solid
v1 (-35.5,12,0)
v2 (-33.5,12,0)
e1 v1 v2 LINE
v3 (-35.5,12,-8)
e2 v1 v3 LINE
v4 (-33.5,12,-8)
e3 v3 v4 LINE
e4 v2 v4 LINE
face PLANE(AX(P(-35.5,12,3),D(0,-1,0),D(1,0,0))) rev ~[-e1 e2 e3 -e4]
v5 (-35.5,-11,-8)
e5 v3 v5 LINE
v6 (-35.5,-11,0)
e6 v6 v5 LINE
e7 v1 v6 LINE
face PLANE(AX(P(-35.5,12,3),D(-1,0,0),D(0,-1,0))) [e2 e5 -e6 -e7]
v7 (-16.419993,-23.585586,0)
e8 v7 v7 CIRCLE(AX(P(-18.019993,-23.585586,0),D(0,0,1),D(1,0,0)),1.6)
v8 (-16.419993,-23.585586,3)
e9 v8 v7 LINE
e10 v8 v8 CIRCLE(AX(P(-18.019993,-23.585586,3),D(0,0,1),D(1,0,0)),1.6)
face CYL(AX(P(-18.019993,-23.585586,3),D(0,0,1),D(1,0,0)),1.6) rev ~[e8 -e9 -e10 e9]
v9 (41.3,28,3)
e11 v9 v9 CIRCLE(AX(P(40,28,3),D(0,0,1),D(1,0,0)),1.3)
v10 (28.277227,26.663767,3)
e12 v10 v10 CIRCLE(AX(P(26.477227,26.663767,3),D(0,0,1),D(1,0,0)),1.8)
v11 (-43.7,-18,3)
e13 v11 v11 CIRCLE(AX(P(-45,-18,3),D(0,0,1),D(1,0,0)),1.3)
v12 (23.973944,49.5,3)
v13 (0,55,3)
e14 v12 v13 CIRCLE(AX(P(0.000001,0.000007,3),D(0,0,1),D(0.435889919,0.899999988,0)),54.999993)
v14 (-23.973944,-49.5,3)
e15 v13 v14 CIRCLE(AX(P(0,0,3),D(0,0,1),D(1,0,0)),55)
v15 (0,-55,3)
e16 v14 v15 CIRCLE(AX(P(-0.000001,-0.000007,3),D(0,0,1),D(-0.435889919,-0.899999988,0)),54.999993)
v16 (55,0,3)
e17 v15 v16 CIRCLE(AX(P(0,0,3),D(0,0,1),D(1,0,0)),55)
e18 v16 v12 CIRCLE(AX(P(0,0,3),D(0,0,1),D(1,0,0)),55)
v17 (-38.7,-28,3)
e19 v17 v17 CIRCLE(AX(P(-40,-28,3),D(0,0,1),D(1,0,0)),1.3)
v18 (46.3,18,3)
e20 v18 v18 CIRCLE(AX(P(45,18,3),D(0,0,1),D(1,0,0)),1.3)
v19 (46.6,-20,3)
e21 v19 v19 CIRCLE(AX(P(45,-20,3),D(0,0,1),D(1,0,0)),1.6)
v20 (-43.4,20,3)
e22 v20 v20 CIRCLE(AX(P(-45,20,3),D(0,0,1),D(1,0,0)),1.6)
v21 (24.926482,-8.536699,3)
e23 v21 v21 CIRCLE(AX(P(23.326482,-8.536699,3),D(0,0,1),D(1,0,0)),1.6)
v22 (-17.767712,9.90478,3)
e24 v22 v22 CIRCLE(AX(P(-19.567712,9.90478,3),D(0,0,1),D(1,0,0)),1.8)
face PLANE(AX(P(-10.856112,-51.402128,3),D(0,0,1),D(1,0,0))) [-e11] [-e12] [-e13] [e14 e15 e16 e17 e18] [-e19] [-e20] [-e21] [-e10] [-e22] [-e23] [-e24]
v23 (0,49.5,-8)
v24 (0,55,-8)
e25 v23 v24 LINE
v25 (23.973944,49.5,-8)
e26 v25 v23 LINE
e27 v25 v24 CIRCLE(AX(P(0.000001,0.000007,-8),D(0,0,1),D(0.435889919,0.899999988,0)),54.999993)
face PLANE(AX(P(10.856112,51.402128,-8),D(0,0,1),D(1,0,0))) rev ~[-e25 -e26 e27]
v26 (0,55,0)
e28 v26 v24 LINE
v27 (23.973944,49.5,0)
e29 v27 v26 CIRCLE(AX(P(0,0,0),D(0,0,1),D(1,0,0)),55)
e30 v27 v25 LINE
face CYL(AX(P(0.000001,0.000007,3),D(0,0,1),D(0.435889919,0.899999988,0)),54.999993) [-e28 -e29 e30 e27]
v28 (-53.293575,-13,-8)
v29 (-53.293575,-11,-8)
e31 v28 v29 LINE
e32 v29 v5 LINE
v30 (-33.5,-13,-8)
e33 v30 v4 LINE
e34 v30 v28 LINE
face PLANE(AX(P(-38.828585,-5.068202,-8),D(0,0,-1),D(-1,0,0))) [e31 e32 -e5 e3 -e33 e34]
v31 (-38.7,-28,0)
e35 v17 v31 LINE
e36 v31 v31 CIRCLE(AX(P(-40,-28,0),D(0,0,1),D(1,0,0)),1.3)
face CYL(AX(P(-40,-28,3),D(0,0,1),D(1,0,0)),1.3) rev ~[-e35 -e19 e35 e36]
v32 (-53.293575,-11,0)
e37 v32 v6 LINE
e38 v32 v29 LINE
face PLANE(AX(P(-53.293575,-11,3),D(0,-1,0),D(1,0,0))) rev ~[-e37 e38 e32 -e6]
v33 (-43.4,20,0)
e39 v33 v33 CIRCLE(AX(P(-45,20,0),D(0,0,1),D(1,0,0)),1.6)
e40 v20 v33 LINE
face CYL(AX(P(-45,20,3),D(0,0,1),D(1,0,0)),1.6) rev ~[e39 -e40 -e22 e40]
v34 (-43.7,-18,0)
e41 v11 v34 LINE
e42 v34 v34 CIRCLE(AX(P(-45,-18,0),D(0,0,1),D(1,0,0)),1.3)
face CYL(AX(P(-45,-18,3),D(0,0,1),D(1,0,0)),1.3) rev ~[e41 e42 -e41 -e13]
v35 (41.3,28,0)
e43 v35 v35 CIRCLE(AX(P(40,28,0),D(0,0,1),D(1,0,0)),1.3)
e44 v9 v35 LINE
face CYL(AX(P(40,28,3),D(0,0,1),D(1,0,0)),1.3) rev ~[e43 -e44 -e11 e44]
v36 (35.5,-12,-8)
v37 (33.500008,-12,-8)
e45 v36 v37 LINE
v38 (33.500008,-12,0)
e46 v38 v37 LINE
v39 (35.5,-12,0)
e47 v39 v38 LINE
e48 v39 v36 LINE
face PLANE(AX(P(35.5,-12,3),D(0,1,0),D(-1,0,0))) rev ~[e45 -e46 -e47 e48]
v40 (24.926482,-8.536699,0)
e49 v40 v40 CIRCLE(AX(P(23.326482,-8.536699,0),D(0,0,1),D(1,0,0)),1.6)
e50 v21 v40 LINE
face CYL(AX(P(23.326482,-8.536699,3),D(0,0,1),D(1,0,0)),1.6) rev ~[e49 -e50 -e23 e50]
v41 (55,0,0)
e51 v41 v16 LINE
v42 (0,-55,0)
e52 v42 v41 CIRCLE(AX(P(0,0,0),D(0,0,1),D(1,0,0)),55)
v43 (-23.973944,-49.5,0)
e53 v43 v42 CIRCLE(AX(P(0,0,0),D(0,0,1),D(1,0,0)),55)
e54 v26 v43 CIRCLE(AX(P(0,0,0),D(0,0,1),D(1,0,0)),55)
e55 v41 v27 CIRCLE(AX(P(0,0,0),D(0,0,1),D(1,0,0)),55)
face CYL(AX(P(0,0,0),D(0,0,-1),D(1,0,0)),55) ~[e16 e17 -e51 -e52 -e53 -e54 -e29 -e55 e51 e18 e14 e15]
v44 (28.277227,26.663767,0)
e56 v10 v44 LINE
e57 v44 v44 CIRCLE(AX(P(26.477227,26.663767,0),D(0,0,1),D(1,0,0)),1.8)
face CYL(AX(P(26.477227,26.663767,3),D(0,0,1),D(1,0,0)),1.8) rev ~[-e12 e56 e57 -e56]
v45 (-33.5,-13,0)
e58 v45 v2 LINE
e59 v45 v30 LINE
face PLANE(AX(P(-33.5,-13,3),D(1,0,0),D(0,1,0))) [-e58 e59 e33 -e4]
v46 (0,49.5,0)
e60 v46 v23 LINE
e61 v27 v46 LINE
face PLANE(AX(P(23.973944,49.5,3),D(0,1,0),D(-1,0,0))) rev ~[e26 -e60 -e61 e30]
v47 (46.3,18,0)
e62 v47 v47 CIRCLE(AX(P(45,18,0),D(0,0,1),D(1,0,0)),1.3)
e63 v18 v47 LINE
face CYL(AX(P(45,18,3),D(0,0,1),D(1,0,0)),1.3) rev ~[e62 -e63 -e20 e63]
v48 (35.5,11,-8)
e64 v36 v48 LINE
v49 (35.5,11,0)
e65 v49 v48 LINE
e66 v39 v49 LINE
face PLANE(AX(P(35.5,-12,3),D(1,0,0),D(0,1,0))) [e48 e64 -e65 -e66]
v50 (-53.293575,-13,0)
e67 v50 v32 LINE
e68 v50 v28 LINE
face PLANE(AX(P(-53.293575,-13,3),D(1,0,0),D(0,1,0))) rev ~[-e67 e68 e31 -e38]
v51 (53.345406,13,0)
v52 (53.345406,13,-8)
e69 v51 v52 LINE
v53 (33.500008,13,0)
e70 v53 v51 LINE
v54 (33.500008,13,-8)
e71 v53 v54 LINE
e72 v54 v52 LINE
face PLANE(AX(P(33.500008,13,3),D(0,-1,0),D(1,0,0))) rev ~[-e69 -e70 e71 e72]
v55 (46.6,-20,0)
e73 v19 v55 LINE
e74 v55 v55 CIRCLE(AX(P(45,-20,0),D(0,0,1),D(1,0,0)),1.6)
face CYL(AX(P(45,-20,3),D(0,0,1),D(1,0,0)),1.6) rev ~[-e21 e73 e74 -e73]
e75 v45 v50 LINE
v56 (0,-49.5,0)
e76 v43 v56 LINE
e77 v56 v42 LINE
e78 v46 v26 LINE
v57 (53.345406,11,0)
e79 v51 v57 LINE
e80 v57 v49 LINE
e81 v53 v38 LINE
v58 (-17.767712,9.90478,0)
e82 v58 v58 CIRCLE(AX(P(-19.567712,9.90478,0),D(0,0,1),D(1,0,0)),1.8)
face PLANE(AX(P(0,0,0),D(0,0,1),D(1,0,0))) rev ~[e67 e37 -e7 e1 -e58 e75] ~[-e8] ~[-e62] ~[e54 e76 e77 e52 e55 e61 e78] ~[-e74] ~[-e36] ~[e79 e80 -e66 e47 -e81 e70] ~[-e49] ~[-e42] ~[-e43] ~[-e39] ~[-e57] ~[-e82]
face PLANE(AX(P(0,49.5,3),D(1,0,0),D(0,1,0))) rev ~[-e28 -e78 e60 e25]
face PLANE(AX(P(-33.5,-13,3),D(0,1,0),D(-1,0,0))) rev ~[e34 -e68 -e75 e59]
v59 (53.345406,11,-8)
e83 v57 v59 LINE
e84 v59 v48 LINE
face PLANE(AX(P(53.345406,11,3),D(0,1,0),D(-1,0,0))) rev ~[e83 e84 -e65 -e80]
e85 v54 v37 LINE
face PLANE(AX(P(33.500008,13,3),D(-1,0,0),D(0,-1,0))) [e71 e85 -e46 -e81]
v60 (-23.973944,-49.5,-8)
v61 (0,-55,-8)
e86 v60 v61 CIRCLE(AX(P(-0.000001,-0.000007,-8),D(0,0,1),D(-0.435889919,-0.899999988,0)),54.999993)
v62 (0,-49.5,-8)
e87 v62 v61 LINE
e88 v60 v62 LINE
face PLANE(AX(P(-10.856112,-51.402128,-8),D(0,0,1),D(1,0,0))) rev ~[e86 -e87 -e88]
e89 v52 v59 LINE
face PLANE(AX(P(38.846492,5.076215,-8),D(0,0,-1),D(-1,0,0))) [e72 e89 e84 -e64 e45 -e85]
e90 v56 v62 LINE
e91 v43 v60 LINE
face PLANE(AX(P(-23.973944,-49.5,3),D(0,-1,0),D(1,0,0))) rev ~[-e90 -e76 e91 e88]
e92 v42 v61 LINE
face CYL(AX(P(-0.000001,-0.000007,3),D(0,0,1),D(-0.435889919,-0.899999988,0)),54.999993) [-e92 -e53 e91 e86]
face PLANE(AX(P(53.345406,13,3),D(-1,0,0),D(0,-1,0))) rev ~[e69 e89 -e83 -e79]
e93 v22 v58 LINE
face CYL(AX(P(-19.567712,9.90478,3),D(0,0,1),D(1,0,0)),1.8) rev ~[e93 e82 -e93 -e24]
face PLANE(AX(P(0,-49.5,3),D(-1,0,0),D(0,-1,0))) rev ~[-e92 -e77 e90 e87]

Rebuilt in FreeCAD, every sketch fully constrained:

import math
import FreeCAD as App
import Part
import Sketcher

V = App.Vector


def add_polygon(sketch, points):
    """Adds a closed chain of lines whose ends are joined by coincident constraints."""
    first, n = sketch.GeometryCount, len(points)
    for a, b in zip(points, points[1:] + points[:1]):
        sketch.addGeometry(Part.LineSegment(App.Vector(*a, 0), App.Vector(*b, 0)), False)
    for i in range(n):
        sketch.addConstraint(Sketcher.Constraint("Coincident", first + i, 2, first + (i + 1) % n, 1))

doc = App.newDocument("Part")
params = doc.addObject("Spreadsheet::Sheet", "Params")
for row, (alias, value) in enumerate([
    ("sketch1_diameter", "110 mm"),
    ("pad1_length", "3 mm"),
    ("sketch2_diameter", "2.6 mm"),
    ("sketch2_diameter2", "3.6 mm"),
    ("sketch2_diameter3", "3.2 mm"),
    ("pocket1_length", "5 mm"),
    ("sketch3_width", "2 mm"),
    ("sketch3_height", "25 mm"),
    ("pad2_length", "11 mm"),
    ("sketch4_height", "5.5 mm"),
    ("pad3_length", "11 mm"),
    ("sketch5_diameter", "3.2 mm"),
    ("pocket2_length", "5 mm"),
], start=1):
    params.set(f"A{row}", alias)
    params.set(f"B{row}", "=" + value)
    params.setAlias(f"B{row}", alias)

body = doc.addObject("PartDesign::Body", "Body")

# Sketch on XY plane
sketch1 = doc.addObject("Sketcher::SketchObject", "Sketch")
body.addObject(sketch1)
sketch1.AttachmentSupport = (doc.XY_Plane, [""])
sketch1.MapMode = "FlatFace"
sketch1.addGeometry(Part.Circle(V(0, 0, 0), V(0, 0, 1), 55), False)
sketch1.addConstraint(Sketcher.Constraint("Coincident", 0, 3, -1, 1))
sketch1.addConstraint(Sketcher.Constraint("Diameter", 0, 110.0))
sketch1.setExpression("Constraints[1]", "Params.sketch1_diameter")
pad1 = doc.addObject("PartDesign::Pad", "Pad")
body.addObject(pad1)
pad1.Profile = sketch1
pad1.setExpression("Length", "Params.pad1_length")

# Sketch on XY plane
sketch2 = doc.addObject("Sketcher::SketchObject", "Sketch001")
body.addObject(sketch2)
sketch2.AttachmentSupport = (doc.XY_Plane, [""])
sketch2.MapMode = "FlatFace"
sketch2.AttachmentOffset = App.Placement(V(0, 0, 3), App.Rotation())
sketch2.addGeometry(Part.Circle(V(-45, -18, 0), V(0, 0, 1), 1.3), False)
sketch2.addGeometry(Part.Circle(V(45, 18, 0), V(0, 0, 1), 1.3), False)
sketch2.addGeometry(Part.Circle(V(-40, -28, 0), V(0, 0, 1), 1.3), False)
sketch2.addGeometry(Part.Circle(V(40, 28, 0), V(0, 0, 1), 1.3), False)
sketch2.addGeometry(Part.Circle(V(-19.567712, 9.90478, 0), V(0, 0, 1), 1.8), False)
sketch2.addGeometry(Part.Circle(V(26.477227, 26.663767, 0), V(0, 0, 1), 1.8), False)
sketch2.addGeometry(Part.Circle(V(-18.019993, -23.585586, 0), V(0, 0, 1), 1.6), False)
sketch2.addGeometry(Part.Circle(V(23.326482, -8.536699, 0), V(0, 0, 1), 1.6), False)
sketch2.addConstraint(Sketcher.Constraint("Equal", 0, 1))
sketch2.addConstraint(Sketcher.Constraint("Equal", 1, 2))
sketch2.addConstraint(Sketcher.Constraint("Equal", 2, 3))
sketch2.addConstraint(Sketcher.Constraint("Equal", 4, 5))
sketch2.addConstraint(Sketcher.Constraint("Equal", 6, 7))
sketch2.addConstraint(Sketcher.Constraint("Symmetric", 0, 3, 1, 3, -1, 1))
sketch2.addConstraint(Sketcher.Constraint("Symmetric", 2, 3, 3, 3, -1, 1))
sketch2.addConstraint(Sketcher.Constraint("Diameter", 0, 2.6))
sketch2.addConstraint(Sketcher.Constraint("Diameter", 4, 3.6))
sketch2.addConstraint(Sketcher.Constraint("Diameter", 6, 3.2))
sketch2.addConstraint(Sketcher.Constraint("DistanceX", 0, 3, -1, 1, 45.0))
sketch2.addConstraint(Sketcher.Constraint("DistanceY", 0, 3, -1, 1, 18.0))
sketch2.addConstraint(Sketcher.Constraint("DistanceX", 2, 3, -1, 1, 40.0))
sketch2.addConstraint(Sketcher.Constraint("DistanceY", 2, 3, -1, 1, 28.0))
sketch2.addConstraint(Sketcher.Constraint("DistanceY", 7, 3, -1, 1, 8.536699))
sketch2.addConstraint(Sketcher.Constraint("DistanceX", 4, 3, -1, 1, 19.567712))
sketch2.addConstraint(Sketcher.Constraint("DistanceY", -1, 1, 4, 3, 9.90478))
sketch2.addConstraint(Sketcher.Constraint("DistanceX", -1, 1, 7, 3, 23.326482))
sketch2.addConstraint(Sketcher.Constraint("DistanceX", 4, 3, 5, 3, 46.044939))
sketch2.addConstraint(Sketcher.Constraint("DistanceX", 4, 3, 6, 3, 1.547719))
sketch2.addConstraint(Sketcher.Constraint("DistanceY", -1, 1, 5, 3, 26.663767))
sketch2.addConstraint(Sketcher.Constraint("DistanceY", 6, 3, -1, 1, 23.585586))
sketch2.setExpression("Constraints[7]", "Params.sketch2_diameter")
sketch2.setExpression("Constraints[8]", "Params.sketch2_diameter2")
sketch2.setExpression("Constraints[9]", "Params.sketch2_diameter3")
pocket1 = doc.addObject("PartDesign::Pocket", "Pocket")
body.addObject(pocket1)
pocket1.Profile = sketch2
pocket1.setExpression("Length", "Params.pocket1_length")

# Sketch on XY plane
sketch3 = doc.addObject("Sketcher::SketchObject", "Sketch002")
body.addObject(sketch3)
sketch3.AttachmentSupport = (doc.XY_Plane, [""])
sketch3.MapMode = "FlatFace"
sketch3.AttachmentOffset = App.Placement(V(0, 0, 3), App.Rotation())
add_polygon(sketch3, [(33.500008, 13), (33.500008, -12), (35.5, -12), (35.5, 11), (53.345406, 11), (53.345406, 13)])  # lines 0-5
add_polygon(sketch3, [(-33.5, -13), (-33.5, 12), (-35.5, 12), (-35.5, -11), (-53.293575, -11), (-53.293575, -13)])  # lines 6-11
sketch3.addConstraint(Sketcher.Constraint("Vertical", 0))
sketch3.addConstraint(Sketcher.Constraint("Horizontal", 1))
sketch3.addConstraint(Sketcher.Constraint("Vertical", 2))
sketch3.addConstraint(Sketcher.Constraint("Horizontal", 3))
sketch3.addConstraint(Sketcher.Constraint("Vertical", 4))
sketch3.addConstraint(Sketcher.Constraint("Horizontal", 5))
sketch3.addConstraint(Sketcher.Constraint("Vertical", 6))
sketch3.addConstraint(Sketcher.Constraint("Horizontal", 7))
sketch3.addConstraint(Sketcher.Constraint("Vertical", 8))
sketch3.addConstraint(Sketcher.Constraint("Horizontal", 9))
sketch3.addConstraint(Sketcher.Constraint("Vertical", 10))
sketch3.addConstraint(Sketcher.Constraint("Horizontal", 11))
sketch3.addConstraint(Sketcher.Constraint("Symmetric", 0, 2, 6, 2, -1, 1))
sketch3.addConstraint(Sketcher.Constraint("Symmetric", 2, 2, 8, 2, -1, 1))
sketch3.addConstraint(Sketcher.Constraint("Equal", 7, 4))
sketch3.addConstraint(Sketcher.Constraint("Equal", 0, 6))
sketch3.addConstraint(Sketcher.Constraint("DistanceX", 7, 2, 7, 1, 2.0))
sketch3.addConstraint(Sketcher.Constraint("DistanceY", 0, 2, 0, 1, 25.0))
sketch3.addConstraint(Sketcher.Constraint("DistanceY", 0, 2, -1, 1, 12.0))
sketch3.addConstraint(Sketcher.Constraint("DistanceX", 6, 2, 2, 2, 69.0))
sketch3.addConstraint(Sketcher.Constraint("DistanceX", 3, 1, 3, 2, 17.845406))
sketch3.addConstraint(Sketcher.Constraint("DistanceX", 9, 2, 9, 1, 17.793575))
sketch3.setExpression("Constraints[28]", "Params.sketch3_width")
sketch3.setExpression("Constraints[29]", "Params.sketch3_height")
pad2 = doc.addObject("PartDesign::Pad", "Pad001")
body.addObject(pad2)
pad2.Profile = sketch3
pad2.setExpression("Length", "Params.pad2_length")
pad2.Reversed = True

# Sketch on XY plane
sketch4 = doc.addObject("Sketcher::SketchObject", "Sketch003")
body.addObject(sketch4)
sketch4.AttachmentSupport = (doc.XY_Plane, [""])
sketch4.MapMode = "FlatFace"
sketch4.AttachmentOffset = App.Placement(V(0, 0, 3), App.Rotation())
sketch4.addGeometry(Part.ArcOfCircle(Part.Circle(V(-0.000001, -0.000007, 0), V(0, 0, 1), 54.999993), math.radians(-115.841934), math.radians(-89.999999)), False)
sketch4.addGeometry(Part.LineSegment(V(0, -55, 0), V(0, -49.5, 0)), False)
sketch4.addGeometry(Part.LineSegment(V(0, -49.5, 0), V(-23.973944, -49.5, 0)), False)
sketch4.addGeometry(Part.ArcOfCircle(Part.Circle(V(0.000001, 0.000007, 0), V(0, 0, 1), 54.999993), math.radians(64.158066), math.radians(90.000001)), False)
sketch4.addGeometry(Part.LineSegment(V(0, 55, 0), V(0, 49.5, 0)), False)
sketch4.addGeometry(Part.LineSegment(V(0, 49.5, 0), V(23.973944, 49.5, 0)), False)
sketch4.addConstraint(Sketcher.Constraint("Coincident", 0, 2, 1, 1))
sketch4.addConstraint(Sketcher.Constraint("Coincident", 1, 2, 2, 1))
sketch4.addConstraint(Sketcher.Constraint("Coincident", 2, 2, 0, 1))
sketch4.addConstraint(Sketcher.Constraint("Coincident", 3, 2, 4, 1))
sketch4.addConstraint(Sketcher.Constraint("Coincident", 4, 2, 5, 1))
sketch4.addConstraint(Sketcher.Constraint("Coincident", 5, 2, 3, 1))
sketch4.addConstraint(Sketcher.Constraint("Vertical", 1))
sketch4.addConstraint(Sketcher.Constraint("Horizontal", 2))
sketch4.addConstraint(Sketcher.Constraint("Vertical", 4))
sketch4.addConstraint(Sketcher.Constraint("Horizontal", 5))
sketch4.addConstraint(Sketcher.Constraint("Coincident", 0, 3, -1, 1))
sketch4.addConstraint(Sketcher.Constraint("Coincident", 3, 3, -1, 1))
sketch4.addConstraint(Sketcher.Constraint("Equal", 0, 3))
sketch4.addConstraint(Sketcher.Constraint("Symmetric", 1, 2, 4, 2, -1, 1))
sketch4.addConstraint(Sketcher.Constraint("PointOnObject", 0, 2, -2))
sketch4.addConstraint(Sketcher.Constraint("DistanceY", 1, 1, 1, 2, 5.5))
sketch4.addConstraint(Sketcher.Constraint("DistanceY", 0, 2, -1, 1, 55.0))
sketch4.setExpression("Constraints[15]", "Params.sketch4_height")
pad3 = doc.addObject("PartDesign::Pad", "Pad002")
body.addObject(pad3)
pad3.Profile = sketch4
pad3.setExpression("Length", "Params.pad3_length")
pad3.Reversed = True

# Sketch on XY plane
sketch5 = doc.addObject("Sketcher::SketchObject", "Sketch004")
body.addObject(sketch5)
sketch5.AttachmentSupport = (doc.XY_Plane, [""])
sketch5.MapMode = "FlatFace"
sketch5.AttachmentOffset = App.Placement(V(0, 0, 3), App.Rotation())
sketch5.addGeometry(Part.Circle(V(-45, 20, 0), V(0, 0, 1), 1.6), False)
sketch5.addGeometry(Part.Circle(V(45, -20, 0), V(0, 0, 1), 1.6), False)
sketch5.addConstraint(Sketcher.Constraint("Equal", 0, 1))
sketch5.addConstraint(Sketcher.Constraint("Symmetric", 0, 3, 1, 3, -1, 1))
sketch5.addConstraint(Sketcher.Constraint("Diameter", 0, 3.2))
sketch5.addConstraint(Sketcher.Constraint("DistanceX", 0, 3, -1, 1, 45.0))
sketch5.addConstraint(Sketcher.Constraint("DistanceY", -1, 1, 0, 3, 20.0))
sketch5.setExpression("Constraints[2]", "Params.sketch5_diameter")
pocket2 = doc.addObject("PartDesign::Pocket", "Pocket001")
body.addObject(pocket2)
pocket2.Profile = sketch5
pocket2.setExpression("Length", "Params.pocket2_length")

doc.recompute()
